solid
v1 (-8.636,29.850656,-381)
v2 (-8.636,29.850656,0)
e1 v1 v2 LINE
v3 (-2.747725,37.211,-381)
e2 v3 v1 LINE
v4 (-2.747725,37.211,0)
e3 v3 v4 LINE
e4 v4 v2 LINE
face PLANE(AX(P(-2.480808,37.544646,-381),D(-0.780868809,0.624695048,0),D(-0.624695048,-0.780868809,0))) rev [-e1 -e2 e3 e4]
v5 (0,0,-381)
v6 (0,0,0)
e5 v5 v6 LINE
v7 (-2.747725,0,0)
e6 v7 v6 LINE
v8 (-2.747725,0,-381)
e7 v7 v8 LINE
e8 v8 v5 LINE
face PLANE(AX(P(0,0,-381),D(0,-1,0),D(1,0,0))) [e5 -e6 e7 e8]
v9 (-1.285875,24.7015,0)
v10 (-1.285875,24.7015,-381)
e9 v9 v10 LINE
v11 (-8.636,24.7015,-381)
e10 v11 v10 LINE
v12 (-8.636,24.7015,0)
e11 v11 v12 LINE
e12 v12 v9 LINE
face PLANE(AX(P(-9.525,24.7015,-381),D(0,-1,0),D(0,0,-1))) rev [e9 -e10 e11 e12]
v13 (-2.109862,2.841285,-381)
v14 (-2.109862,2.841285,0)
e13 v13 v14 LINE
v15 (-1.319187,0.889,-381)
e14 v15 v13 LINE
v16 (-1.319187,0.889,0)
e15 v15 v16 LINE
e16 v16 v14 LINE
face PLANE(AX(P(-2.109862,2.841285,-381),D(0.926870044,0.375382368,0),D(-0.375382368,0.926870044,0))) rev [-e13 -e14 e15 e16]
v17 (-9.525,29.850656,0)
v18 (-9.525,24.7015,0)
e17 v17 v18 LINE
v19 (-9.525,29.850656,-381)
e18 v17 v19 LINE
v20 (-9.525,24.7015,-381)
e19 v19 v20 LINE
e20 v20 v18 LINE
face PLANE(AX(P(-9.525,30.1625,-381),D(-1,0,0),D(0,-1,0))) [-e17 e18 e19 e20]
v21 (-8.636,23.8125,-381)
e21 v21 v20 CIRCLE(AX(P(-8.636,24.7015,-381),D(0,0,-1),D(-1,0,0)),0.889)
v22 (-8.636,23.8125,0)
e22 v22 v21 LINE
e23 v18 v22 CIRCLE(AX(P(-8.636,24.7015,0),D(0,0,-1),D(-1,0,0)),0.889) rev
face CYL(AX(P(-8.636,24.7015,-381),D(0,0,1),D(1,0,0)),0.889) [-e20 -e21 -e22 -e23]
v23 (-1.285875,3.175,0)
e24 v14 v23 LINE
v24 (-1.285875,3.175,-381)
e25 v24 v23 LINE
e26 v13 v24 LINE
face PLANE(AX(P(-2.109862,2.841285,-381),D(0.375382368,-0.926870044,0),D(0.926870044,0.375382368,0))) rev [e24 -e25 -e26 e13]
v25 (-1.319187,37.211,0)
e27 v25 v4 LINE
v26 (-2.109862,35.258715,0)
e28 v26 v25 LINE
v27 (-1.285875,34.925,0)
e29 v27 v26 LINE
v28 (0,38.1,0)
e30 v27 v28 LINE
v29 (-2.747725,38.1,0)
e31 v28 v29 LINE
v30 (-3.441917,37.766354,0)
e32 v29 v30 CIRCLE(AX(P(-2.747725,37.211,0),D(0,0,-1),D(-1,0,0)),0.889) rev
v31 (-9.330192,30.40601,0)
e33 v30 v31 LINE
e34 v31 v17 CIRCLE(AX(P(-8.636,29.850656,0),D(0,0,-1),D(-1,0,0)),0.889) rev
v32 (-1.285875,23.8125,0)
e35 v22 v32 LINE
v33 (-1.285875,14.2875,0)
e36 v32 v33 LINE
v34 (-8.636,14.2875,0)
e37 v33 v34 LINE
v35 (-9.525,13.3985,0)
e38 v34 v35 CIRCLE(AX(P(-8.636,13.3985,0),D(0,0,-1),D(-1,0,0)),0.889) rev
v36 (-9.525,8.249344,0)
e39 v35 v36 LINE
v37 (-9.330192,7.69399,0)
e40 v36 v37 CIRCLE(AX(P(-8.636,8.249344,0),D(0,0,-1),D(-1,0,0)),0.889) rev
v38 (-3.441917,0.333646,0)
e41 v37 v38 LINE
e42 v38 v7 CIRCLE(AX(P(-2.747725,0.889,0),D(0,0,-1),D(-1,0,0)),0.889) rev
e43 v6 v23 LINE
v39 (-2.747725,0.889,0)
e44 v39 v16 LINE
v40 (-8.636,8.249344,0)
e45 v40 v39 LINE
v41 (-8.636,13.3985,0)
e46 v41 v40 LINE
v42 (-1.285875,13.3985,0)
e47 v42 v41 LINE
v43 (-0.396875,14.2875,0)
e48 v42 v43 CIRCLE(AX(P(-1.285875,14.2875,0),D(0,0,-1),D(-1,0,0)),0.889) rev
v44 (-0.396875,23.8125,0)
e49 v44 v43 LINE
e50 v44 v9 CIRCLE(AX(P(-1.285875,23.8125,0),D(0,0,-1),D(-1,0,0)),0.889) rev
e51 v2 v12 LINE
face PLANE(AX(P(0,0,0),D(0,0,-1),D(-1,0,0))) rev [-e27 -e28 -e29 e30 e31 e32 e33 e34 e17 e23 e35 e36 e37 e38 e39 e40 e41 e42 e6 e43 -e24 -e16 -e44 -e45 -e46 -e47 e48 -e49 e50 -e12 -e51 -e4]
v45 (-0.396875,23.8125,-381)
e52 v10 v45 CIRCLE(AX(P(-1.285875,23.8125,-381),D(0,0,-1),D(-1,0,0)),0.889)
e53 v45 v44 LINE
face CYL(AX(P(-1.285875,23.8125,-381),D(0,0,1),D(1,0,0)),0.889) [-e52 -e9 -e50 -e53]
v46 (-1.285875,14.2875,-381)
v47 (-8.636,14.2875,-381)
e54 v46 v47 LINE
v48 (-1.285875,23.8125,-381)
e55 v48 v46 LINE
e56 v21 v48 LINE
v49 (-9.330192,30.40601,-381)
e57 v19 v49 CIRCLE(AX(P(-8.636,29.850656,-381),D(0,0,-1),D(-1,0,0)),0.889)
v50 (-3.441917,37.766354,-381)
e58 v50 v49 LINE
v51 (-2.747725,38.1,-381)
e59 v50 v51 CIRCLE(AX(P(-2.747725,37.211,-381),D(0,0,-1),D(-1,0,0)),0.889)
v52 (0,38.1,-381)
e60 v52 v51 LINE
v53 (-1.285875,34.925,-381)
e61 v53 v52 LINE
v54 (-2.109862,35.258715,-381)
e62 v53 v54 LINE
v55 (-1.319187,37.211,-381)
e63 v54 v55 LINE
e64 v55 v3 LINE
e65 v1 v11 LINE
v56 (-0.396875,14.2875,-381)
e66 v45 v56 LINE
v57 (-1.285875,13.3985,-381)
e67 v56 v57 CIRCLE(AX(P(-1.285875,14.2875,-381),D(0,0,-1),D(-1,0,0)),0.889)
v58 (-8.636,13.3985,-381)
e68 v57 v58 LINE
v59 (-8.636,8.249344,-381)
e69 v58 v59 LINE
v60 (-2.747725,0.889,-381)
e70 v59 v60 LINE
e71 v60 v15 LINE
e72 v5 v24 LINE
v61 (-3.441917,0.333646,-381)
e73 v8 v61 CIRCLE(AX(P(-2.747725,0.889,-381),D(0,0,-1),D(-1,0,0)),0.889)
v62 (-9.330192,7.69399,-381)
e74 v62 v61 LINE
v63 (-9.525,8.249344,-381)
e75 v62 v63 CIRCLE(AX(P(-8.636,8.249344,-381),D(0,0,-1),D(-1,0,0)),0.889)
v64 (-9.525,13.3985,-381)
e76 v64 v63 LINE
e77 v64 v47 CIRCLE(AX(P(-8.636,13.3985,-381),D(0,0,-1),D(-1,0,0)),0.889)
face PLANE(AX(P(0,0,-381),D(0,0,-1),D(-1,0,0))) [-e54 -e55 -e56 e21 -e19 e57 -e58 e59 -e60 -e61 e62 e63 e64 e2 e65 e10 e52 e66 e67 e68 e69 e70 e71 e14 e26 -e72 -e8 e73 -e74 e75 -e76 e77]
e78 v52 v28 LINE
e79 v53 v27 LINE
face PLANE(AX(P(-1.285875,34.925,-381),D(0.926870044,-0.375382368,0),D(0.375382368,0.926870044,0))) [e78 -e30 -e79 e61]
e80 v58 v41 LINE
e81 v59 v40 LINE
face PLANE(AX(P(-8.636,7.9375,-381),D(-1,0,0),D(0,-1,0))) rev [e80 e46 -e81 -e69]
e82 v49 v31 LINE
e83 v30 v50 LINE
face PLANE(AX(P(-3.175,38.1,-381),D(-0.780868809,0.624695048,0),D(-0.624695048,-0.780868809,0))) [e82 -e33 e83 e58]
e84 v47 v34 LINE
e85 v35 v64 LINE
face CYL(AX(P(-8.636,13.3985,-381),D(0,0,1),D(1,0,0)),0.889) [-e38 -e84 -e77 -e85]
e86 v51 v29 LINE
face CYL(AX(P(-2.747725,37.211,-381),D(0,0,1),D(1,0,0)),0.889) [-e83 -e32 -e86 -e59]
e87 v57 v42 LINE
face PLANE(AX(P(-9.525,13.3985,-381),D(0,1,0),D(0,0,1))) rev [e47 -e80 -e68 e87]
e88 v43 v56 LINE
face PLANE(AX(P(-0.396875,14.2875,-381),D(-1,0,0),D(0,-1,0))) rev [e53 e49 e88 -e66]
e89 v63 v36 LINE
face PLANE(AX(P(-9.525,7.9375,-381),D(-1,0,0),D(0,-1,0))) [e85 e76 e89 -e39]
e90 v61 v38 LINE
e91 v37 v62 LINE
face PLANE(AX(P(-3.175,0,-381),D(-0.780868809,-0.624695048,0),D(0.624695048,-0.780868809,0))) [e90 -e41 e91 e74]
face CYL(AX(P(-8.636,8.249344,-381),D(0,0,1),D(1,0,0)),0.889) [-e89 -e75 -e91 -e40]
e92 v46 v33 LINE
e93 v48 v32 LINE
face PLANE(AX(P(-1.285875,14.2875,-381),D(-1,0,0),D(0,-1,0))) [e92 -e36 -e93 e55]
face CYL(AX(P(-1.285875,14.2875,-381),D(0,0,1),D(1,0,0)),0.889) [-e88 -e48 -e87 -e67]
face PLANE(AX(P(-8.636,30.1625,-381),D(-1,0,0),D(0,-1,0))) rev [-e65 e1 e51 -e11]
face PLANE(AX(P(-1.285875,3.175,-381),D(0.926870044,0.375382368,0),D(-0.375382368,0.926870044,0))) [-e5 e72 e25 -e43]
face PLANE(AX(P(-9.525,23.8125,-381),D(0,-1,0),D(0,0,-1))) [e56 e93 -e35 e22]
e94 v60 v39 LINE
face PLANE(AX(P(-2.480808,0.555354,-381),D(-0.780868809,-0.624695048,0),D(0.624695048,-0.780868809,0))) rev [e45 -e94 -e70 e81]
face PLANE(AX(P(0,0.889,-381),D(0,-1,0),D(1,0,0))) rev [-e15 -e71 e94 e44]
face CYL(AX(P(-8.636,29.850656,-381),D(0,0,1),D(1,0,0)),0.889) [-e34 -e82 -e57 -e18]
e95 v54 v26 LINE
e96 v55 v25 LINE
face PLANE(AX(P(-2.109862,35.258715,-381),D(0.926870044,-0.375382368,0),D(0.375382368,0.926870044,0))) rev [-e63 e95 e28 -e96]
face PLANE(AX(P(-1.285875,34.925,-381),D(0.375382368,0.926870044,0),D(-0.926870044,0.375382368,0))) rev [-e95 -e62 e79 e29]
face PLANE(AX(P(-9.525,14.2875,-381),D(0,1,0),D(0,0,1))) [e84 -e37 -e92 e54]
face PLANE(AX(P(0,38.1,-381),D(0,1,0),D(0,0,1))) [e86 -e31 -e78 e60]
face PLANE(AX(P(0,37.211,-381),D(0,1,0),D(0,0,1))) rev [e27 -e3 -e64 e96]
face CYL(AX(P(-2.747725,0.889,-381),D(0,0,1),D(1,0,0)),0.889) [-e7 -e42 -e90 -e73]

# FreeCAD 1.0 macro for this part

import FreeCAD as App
import Part
import Sketcher

V = App.Vector
Q = App.Units.Quantity


def edges_at(feature, points):
    """Names of the edges that pass closest to the given points."""
    edges = feature.Shape.Edges
    near = lambda p: min(range(len(edges)), key=lambda i: edges[i].distToShape(Part.Vertex(*p))[0])
    return sorted({f"Edge{near(p) + 1}" for p in points})


def add_polygon(sketch, points):
    """Adds a closed chain of lines whose ends are joined by coincident constraints."""
    first, n = sketch.GeometryCount, len(points)
    for a, b in zip(points, points[1:] + points[:1]):
        sketch.addGeometry(Part.LineSegment(App.Vector(*a, 0), App.Vector(*b, 0)), False)
    for i in range(n):
        sketch.addConstraint(Sketcher.Constraint("Coincident", first + i, 2, first + (i + 1) % n, 1))

doc = App.newDocument("Part")
body = doc.addObject("PartDesign::Body", "Body")

sketch1 = body.newObject("Sketcher::SketchObject", "Sketch")
sketch1.AttachmentSupport = (doc.getObject("XY_Plane"), [""])
sketch1.MapMode = "FlatFace"
add_polygon(sketch1, [(0, 0), (-1.285875, 3.175), (-2.109862, 2.841285), (-1.319187, 0.889), (-2.747725, 0.889), (-8.636, 8.249344), (-8.636, 13.3985), (-0.396875, 13.3985), (-0.396875, 24.7015), (-8.636, 24.7015), (-8.636, 29.850656), (-2.747725, 37.211), (-1.319187, 37.211), (-2.109862, 35.258715), (-1.285875, 34.925), (0, 38.1), (-3.175, 38.1), (-9.525, 30.1625), (-9.525, 23.8125), (-1.285875, 23.8125), (-1.285875, 14.2875), (-9.525, 14.2875), (-9.525, 7.9375), (-3.175, 0)])
sketch1.addConstraint(Sketcher.Constraint("Horizontal", 3))
sketch1.addConstraint(Sketcher.Constraint("Vertical", 5))
sketch1.addConstraint(Sketcher.Constraint("Horizontal", 6))
sketch1.addConstraint(Sketcher.Constraint("Vertical", 7))
sketch1.addConstraint(Sketcher.Constraint("Horizontal", 8))
sketch1.addConstraint(Sketcher.Constraint("Vertical", 9))
sketch1.addConstraint(Sketcher.Constraint("Horizontal", 11))
sketch1.addConstraint(Sketcher.Constraint("Horizontal", 15))
sketch1.addConstraint(Sketcher.Constraint("Vertical", 17))
sketch1.addConstraint(Sketcher.Constraint("Horizontal", 18))
sketch1.addConstraint(Sketcher.Constraint("Vertical", 19))
sketch1.addConstraint(Sketcher.Constraint("Horizontal", 20))
sketch1.addConstraint(Sketcher.Constraint("Vertical", 21))
sketch1.addConstraint(Sketcher.Constraint("Horizontal", 23))
sketch1.addConstraint(Sketcher.Constraint("Coincident", 23, 2, -1, 1))
sketch1.addConstraint(Sketcher.Constraint("PointOnObject", 14, 2, -2))
sketch1.addConstraint(Sketcher.Constraint("Perpendicular", 0, 1))
sketch1.addConstraint(Sketcher.Constraint("Perpendicular", 1, 2))
sketch1.addConstraint(Sketcher.Constraint("Perpendicular", 12, 13))
sketch1.addConstraint(Sketcher.Constraint("Perpendicular", 13, 14))
sketch1.addConstraint(Sketcher.Constraint("Parallel", 10, 16))
sketch1.addConstraint(Sketcher.Constraint("Parallel", 4, 22))
sketch1.addConstraint(Sketcher.Constraint("Vertical", 5, 2, 8, 2))
sketch1.addConstraint(Sketcher.Constraint("Vertical", 3, 2, 10, 2))
sketch1.addConstraint(Sketcher.Constraint("Vertical", 2, 2, 11, 2))
sketch1.addConstraint(Sketcher.Constraint("Vertical", 1, 2, 12, 2))
sketch1.addConstraint(Sketcher.Constraint("Vertical", 0, 2, 13, 2))
sketch1.addConstraint(Sketcher.Constraint("Vertical", 13, 2, 18, 2))
sketch1.addConstraint(Sketcher.Constraint("Vertical", 17, 2, 20, 2))
sketch1.addConstraint(Sketcher.Constraint("Vertical", 15, 2, 22, 2))
sketch1.addConstraint(Sketcher.Constraint("Equal", 8, 18))
sketch1.addConstraint(Sketcher.Constraint("Equal", 5, 9))
sketch1.addConstraint(Sketcher.Constraint("Equal", 17, 21))
sketch1.addConstraint(Sketcher.Constraint("Equal", 4, 10))
sketch1.addConstraint(Sketcher.Constraint("Equal", 2, 12))
sketch1.addConstraint(Sketcher.Constraint("DistanceY", 17, 2, 17, 1, Q("0.25 in")))
sketch1.addConstraint(Sketcher.Constraint("DistanceY", -1, 1, 14, 2, Q("1.5 in")))
sketch1.addConstraint(Sketcher.Constraint("DistanceX", 15, 2, 15, 1, Q("0.125 in")))
sketch1.addConstraint(Sketcher.Constraint("DistanceY", 7, 1, 7, 2, Q("0.445 in")))
sketch1.addConstraint(Sketcher.Constraint("DistanceY", 19, 2, 19, 1, Q("0.375 in")))
sketch1.addConstraint(Sketcher.Constraint("DistanceX", 4, 2, -1, 1, Q("0.34 in")))
sketch1.addConstraint(Sketcher.Constraint("DistanceY", 2, 2, 0, 2, Q("0.09 in")))
sketch1.addConstraint(Sketcher.Constraint("Distance", 1, Q("0.035 in")))
sketch1.addConstraint(Sketcher.Constraint("DistanceY", -1, 1, 0, 2, Q("0.125 in")))
sketch1.addConstraint(Sketcher.Constraint("DistanceX", 6, 2, -1, 1, Q("0.015625 in")))
sketch1.addConstraint(Sketcher.Constraint("DistanceX", 16, 2, -1, 1, Q("0.375 in")))
sketch1.addConstraint(Sketcher.Constraint("Distance", 4, 9.42584))
pad1 = body.newObject("PartDesign::Pad", "Pad")
pad1.Profile = sketch1
pad1.Length = Q("15 in")
pad1.Reversed = True
doc.recompute()

fillet = body.newObject("PartDesign::Fillet", "Fillet")
fillet.Base = (pad1, edges_at(pad1, [
    (-3.175, 0, -190.5),
    (-9.525, 7.938, -190.5),
    (-9.525, 14.287, -190.5),
    (-9.525, 23.812, -190.5),
    (-9.525, 30.163, -190.5),
    (-3.175, 38.1, -190.5),
    (-0.397, 24.701, -190.5),
    (-0.397, 13.399, -190.5),
]))
fillet.Radius = Q("0.035 in")

doc.recompute()
